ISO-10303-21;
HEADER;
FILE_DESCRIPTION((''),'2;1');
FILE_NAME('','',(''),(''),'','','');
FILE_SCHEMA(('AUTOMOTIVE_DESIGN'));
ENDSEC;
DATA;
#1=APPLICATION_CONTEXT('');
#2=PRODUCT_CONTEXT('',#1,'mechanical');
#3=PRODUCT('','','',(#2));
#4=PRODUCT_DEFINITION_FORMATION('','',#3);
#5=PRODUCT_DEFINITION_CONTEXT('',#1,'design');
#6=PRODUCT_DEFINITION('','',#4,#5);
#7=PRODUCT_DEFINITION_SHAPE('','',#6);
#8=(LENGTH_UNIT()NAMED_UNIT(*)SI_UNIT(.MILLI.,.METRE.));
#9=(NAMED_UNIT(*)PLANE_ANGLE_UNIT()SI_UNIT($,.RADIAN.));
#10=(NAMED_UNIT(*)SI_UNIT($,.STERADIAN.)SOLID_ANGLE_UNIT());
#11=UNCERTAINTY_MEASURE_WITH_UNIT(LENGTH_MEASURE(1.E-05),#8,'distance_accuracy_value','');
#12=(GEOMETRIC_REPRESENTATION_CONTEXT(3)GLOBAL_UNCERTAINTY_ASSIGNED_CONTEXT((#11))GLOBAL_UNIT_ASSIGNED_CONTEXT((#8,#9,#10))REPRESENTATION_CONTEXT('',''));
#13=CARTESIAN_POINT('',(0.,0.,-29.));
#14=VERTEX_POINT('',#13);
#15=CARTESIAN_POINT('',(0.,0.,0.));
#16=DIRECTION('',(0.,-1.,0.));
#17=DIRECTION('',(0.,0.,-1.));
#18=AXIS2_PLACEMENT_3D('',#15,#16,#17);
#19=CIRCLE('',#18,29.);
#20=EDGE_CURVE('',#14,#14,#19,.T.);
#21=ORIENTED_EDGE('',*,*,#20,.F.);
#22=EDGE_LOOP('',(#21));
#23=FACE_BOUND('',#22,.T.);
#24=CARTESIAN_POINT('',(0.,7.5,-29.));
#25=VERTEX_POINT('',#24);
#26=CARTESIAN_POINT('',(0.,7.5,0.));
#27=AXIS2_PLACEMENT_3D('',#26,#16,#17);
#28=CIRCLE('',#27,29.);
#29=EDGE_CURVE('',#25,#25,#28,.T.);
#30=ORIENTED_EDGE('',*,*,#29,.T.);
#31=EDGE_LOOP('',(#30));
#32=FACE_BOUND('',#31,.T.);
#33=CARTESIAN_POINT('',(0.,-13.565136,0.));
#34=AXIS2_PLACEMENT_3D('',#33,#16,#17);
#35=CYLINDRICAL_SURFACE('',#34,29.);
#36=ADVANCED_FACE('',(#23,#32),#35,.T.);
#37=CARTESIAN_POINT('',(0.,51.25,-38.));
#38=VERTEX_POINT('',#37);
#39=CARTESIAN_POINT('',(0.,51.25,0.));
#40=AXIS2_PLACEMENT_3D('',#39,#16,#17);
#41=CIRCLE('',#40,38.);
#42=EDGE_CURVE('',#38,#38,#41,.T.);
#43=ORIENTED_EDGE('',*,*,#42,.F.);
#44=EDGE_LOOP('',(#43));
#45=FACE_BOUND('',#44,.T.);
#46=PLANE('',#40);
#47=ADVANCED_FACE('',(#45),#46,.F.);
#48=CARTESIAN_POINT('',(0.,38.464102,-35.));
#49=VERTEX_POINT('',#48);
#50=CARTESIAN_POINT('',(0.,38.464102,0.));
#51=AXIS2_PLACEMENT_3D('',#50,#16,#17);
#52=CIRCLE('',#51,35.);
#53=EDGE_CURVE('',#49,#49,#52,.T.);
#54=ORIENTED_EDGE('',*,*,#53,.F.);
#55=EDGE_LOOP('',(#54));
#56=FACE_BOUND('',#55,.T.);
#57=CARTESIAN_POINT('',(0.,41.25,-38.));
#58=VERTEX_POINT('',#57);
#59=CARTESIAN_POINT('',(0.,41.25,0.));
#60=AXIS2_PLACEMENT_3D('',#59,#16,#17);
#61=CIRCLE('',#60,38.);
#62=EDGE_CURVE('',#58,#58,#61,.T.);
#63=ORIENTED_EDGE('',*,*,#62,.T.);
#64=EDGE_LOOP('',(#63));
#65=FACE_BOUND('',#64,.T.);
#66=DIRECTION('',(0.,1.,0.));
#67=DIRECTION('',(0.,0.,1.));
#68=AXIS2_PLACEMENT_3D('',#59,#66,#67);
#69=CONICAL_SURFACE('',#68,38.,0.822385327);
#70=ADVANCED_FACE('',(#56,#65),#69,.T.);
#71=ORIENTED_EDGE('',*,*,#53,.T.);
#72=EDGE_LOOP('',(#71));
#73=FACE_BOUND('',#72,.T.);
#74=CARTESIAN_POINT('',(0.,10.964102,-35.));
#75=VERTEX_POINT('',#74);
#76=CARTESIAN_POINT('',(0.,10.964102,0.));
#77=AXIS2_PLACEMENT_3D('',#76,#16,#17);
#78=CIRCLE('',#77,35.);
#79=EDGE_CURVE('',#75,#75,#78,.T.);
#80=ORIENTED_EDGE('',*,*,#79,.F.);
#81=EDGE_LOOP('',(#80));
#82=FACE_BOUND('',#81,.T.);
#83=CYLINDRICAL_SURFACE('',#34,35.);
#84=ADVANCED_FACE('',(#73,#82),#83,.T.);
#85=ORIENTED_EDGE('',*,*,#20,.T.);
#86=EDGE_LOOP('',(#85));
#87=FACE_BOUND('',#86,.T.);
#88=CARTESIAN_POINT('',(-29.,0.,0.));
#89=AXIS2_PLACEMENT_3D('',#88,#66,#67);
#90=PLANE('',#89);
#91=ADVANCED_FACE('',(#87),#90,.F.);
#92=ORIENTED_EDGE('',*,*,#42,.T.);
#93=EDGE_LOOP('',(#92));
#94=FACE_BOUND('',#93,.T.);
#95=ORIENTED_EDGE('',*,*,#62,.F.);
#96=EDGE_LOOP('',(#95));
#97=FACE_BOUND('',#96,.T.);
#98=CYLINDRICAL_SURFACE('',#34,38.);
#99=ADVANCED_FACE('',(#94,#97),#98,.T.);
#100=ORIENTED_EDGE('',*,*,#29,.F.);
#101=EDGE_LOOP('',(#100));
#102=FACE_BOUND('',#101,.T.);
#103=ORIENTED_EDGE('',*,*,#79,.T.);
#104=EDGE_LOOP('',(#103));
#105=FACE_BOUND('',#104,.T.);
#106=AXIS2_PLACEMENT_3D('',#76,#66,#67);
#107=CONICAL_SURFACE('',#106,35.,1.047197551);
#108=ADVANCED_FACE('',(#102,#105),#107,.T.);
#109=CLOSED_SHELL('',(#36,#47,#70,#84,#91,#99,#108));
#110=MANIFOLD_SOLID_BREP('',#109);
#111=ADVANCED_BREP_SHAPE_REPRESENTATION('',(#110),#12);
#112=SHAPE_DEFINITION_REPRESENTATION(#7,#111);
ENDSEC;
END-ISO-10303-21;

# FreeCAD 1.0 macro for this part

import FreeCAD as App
import Part
import Sketcher
Q = App.Units.Quantity


def add_polygon(sketch, points):
    """Adds a closed chain of lines whose ends are joined by coincident constraints."""
    first, n = sketch.GeometryCount, len(points)
    for a, b in zip(points, points[1:] + points[:1]):
        sketch.addGeometry(Part.LineSegment(App.Vector(*a, 0), App.Vector(*b, 0)), False)
    for i in range(n):
        sketch.addConstraint(Sketcher.Constraint("Coincident", first + i, 2, first + (i + 1) % n, 1))

doc = App.newDocument("Part")
body = doc.addObject("PartDesign::Body", "Body")

# Sketch on XY plane
sketch1 = doc.addObject("Sketcher::SketchObject", "Sketch")
body.addObject(sketch1)
sketch1.AttachmentSupport = (doc.XY_Plane, [""])
sketch1.MapMode = "FlatFace"
add_polygon(sketch1, [(-29, 0), (0, 0), (0, 51.2), (-38, 51.2), (-38, 41.2), (-35, 38.5), (-35, 11), (-29, 7.5)])  # lines 0-7
sketch1.addConstraint(Sketcher.Constraint("Horizontal", 0))
sketch1.addConstraint(Sketcher.Constraint("Vertical", 1))
sketch1.addConstraint(Sketcher.Constraint("Horizontal", 2))
sketch1.addConstraint(Sketcher.Constraint("Vertical", 3))
sketch1.addConstraint(Sketcher.Constraint("Vertical", 5))
sketch1.addConstraint(Sketcher.Constraint("Vertical", 7))
sketch1.addConstraint(Sketcher.Constraint("Coincident", 0, 2, -1, 1))
sketch1.addConstraint(Sketcher.Constraint("DistanceX", 0, 1, 0, 2, 29.0))
sketch1.addConstraint(Sketcher.Constraint("DistanceX", 2, 2, 2, 1, 38.0))
sketch1.addConstraint(Sketcher.Constraint("DistanceY", 3, 2, 3, 1, 10.0))
sketch1.addConstraint(Sketcher.Constraint("Angle", 6, Q("-30 deg")))
sketch1.addConstraint(Sketcher.Constraint("DistanceY", 5, 2, 5, 1, 27.5))
sketch1.addConstraint(Sketcher.Constraint("DistanceY", 7, 2, 7, 1, 7.5))
sketch1.addConstraint(Sketcher.Constraint("DistanceX", 4, 2, -1, 1, 35.0))
sketch1.addConstraint(Sketcher.Constraint("DistanceY", 1, 1, 1, 2, 51.25))
revolution = doc.addObject("PartDesign::Revolution", "Revolution")
body.addObject(revolution)
revolution.Profile = sketch1
revolution.ReferenceAxis = (sketch1, ["V_Axis"])
revolution.Angle = 360

doc.recompute()
